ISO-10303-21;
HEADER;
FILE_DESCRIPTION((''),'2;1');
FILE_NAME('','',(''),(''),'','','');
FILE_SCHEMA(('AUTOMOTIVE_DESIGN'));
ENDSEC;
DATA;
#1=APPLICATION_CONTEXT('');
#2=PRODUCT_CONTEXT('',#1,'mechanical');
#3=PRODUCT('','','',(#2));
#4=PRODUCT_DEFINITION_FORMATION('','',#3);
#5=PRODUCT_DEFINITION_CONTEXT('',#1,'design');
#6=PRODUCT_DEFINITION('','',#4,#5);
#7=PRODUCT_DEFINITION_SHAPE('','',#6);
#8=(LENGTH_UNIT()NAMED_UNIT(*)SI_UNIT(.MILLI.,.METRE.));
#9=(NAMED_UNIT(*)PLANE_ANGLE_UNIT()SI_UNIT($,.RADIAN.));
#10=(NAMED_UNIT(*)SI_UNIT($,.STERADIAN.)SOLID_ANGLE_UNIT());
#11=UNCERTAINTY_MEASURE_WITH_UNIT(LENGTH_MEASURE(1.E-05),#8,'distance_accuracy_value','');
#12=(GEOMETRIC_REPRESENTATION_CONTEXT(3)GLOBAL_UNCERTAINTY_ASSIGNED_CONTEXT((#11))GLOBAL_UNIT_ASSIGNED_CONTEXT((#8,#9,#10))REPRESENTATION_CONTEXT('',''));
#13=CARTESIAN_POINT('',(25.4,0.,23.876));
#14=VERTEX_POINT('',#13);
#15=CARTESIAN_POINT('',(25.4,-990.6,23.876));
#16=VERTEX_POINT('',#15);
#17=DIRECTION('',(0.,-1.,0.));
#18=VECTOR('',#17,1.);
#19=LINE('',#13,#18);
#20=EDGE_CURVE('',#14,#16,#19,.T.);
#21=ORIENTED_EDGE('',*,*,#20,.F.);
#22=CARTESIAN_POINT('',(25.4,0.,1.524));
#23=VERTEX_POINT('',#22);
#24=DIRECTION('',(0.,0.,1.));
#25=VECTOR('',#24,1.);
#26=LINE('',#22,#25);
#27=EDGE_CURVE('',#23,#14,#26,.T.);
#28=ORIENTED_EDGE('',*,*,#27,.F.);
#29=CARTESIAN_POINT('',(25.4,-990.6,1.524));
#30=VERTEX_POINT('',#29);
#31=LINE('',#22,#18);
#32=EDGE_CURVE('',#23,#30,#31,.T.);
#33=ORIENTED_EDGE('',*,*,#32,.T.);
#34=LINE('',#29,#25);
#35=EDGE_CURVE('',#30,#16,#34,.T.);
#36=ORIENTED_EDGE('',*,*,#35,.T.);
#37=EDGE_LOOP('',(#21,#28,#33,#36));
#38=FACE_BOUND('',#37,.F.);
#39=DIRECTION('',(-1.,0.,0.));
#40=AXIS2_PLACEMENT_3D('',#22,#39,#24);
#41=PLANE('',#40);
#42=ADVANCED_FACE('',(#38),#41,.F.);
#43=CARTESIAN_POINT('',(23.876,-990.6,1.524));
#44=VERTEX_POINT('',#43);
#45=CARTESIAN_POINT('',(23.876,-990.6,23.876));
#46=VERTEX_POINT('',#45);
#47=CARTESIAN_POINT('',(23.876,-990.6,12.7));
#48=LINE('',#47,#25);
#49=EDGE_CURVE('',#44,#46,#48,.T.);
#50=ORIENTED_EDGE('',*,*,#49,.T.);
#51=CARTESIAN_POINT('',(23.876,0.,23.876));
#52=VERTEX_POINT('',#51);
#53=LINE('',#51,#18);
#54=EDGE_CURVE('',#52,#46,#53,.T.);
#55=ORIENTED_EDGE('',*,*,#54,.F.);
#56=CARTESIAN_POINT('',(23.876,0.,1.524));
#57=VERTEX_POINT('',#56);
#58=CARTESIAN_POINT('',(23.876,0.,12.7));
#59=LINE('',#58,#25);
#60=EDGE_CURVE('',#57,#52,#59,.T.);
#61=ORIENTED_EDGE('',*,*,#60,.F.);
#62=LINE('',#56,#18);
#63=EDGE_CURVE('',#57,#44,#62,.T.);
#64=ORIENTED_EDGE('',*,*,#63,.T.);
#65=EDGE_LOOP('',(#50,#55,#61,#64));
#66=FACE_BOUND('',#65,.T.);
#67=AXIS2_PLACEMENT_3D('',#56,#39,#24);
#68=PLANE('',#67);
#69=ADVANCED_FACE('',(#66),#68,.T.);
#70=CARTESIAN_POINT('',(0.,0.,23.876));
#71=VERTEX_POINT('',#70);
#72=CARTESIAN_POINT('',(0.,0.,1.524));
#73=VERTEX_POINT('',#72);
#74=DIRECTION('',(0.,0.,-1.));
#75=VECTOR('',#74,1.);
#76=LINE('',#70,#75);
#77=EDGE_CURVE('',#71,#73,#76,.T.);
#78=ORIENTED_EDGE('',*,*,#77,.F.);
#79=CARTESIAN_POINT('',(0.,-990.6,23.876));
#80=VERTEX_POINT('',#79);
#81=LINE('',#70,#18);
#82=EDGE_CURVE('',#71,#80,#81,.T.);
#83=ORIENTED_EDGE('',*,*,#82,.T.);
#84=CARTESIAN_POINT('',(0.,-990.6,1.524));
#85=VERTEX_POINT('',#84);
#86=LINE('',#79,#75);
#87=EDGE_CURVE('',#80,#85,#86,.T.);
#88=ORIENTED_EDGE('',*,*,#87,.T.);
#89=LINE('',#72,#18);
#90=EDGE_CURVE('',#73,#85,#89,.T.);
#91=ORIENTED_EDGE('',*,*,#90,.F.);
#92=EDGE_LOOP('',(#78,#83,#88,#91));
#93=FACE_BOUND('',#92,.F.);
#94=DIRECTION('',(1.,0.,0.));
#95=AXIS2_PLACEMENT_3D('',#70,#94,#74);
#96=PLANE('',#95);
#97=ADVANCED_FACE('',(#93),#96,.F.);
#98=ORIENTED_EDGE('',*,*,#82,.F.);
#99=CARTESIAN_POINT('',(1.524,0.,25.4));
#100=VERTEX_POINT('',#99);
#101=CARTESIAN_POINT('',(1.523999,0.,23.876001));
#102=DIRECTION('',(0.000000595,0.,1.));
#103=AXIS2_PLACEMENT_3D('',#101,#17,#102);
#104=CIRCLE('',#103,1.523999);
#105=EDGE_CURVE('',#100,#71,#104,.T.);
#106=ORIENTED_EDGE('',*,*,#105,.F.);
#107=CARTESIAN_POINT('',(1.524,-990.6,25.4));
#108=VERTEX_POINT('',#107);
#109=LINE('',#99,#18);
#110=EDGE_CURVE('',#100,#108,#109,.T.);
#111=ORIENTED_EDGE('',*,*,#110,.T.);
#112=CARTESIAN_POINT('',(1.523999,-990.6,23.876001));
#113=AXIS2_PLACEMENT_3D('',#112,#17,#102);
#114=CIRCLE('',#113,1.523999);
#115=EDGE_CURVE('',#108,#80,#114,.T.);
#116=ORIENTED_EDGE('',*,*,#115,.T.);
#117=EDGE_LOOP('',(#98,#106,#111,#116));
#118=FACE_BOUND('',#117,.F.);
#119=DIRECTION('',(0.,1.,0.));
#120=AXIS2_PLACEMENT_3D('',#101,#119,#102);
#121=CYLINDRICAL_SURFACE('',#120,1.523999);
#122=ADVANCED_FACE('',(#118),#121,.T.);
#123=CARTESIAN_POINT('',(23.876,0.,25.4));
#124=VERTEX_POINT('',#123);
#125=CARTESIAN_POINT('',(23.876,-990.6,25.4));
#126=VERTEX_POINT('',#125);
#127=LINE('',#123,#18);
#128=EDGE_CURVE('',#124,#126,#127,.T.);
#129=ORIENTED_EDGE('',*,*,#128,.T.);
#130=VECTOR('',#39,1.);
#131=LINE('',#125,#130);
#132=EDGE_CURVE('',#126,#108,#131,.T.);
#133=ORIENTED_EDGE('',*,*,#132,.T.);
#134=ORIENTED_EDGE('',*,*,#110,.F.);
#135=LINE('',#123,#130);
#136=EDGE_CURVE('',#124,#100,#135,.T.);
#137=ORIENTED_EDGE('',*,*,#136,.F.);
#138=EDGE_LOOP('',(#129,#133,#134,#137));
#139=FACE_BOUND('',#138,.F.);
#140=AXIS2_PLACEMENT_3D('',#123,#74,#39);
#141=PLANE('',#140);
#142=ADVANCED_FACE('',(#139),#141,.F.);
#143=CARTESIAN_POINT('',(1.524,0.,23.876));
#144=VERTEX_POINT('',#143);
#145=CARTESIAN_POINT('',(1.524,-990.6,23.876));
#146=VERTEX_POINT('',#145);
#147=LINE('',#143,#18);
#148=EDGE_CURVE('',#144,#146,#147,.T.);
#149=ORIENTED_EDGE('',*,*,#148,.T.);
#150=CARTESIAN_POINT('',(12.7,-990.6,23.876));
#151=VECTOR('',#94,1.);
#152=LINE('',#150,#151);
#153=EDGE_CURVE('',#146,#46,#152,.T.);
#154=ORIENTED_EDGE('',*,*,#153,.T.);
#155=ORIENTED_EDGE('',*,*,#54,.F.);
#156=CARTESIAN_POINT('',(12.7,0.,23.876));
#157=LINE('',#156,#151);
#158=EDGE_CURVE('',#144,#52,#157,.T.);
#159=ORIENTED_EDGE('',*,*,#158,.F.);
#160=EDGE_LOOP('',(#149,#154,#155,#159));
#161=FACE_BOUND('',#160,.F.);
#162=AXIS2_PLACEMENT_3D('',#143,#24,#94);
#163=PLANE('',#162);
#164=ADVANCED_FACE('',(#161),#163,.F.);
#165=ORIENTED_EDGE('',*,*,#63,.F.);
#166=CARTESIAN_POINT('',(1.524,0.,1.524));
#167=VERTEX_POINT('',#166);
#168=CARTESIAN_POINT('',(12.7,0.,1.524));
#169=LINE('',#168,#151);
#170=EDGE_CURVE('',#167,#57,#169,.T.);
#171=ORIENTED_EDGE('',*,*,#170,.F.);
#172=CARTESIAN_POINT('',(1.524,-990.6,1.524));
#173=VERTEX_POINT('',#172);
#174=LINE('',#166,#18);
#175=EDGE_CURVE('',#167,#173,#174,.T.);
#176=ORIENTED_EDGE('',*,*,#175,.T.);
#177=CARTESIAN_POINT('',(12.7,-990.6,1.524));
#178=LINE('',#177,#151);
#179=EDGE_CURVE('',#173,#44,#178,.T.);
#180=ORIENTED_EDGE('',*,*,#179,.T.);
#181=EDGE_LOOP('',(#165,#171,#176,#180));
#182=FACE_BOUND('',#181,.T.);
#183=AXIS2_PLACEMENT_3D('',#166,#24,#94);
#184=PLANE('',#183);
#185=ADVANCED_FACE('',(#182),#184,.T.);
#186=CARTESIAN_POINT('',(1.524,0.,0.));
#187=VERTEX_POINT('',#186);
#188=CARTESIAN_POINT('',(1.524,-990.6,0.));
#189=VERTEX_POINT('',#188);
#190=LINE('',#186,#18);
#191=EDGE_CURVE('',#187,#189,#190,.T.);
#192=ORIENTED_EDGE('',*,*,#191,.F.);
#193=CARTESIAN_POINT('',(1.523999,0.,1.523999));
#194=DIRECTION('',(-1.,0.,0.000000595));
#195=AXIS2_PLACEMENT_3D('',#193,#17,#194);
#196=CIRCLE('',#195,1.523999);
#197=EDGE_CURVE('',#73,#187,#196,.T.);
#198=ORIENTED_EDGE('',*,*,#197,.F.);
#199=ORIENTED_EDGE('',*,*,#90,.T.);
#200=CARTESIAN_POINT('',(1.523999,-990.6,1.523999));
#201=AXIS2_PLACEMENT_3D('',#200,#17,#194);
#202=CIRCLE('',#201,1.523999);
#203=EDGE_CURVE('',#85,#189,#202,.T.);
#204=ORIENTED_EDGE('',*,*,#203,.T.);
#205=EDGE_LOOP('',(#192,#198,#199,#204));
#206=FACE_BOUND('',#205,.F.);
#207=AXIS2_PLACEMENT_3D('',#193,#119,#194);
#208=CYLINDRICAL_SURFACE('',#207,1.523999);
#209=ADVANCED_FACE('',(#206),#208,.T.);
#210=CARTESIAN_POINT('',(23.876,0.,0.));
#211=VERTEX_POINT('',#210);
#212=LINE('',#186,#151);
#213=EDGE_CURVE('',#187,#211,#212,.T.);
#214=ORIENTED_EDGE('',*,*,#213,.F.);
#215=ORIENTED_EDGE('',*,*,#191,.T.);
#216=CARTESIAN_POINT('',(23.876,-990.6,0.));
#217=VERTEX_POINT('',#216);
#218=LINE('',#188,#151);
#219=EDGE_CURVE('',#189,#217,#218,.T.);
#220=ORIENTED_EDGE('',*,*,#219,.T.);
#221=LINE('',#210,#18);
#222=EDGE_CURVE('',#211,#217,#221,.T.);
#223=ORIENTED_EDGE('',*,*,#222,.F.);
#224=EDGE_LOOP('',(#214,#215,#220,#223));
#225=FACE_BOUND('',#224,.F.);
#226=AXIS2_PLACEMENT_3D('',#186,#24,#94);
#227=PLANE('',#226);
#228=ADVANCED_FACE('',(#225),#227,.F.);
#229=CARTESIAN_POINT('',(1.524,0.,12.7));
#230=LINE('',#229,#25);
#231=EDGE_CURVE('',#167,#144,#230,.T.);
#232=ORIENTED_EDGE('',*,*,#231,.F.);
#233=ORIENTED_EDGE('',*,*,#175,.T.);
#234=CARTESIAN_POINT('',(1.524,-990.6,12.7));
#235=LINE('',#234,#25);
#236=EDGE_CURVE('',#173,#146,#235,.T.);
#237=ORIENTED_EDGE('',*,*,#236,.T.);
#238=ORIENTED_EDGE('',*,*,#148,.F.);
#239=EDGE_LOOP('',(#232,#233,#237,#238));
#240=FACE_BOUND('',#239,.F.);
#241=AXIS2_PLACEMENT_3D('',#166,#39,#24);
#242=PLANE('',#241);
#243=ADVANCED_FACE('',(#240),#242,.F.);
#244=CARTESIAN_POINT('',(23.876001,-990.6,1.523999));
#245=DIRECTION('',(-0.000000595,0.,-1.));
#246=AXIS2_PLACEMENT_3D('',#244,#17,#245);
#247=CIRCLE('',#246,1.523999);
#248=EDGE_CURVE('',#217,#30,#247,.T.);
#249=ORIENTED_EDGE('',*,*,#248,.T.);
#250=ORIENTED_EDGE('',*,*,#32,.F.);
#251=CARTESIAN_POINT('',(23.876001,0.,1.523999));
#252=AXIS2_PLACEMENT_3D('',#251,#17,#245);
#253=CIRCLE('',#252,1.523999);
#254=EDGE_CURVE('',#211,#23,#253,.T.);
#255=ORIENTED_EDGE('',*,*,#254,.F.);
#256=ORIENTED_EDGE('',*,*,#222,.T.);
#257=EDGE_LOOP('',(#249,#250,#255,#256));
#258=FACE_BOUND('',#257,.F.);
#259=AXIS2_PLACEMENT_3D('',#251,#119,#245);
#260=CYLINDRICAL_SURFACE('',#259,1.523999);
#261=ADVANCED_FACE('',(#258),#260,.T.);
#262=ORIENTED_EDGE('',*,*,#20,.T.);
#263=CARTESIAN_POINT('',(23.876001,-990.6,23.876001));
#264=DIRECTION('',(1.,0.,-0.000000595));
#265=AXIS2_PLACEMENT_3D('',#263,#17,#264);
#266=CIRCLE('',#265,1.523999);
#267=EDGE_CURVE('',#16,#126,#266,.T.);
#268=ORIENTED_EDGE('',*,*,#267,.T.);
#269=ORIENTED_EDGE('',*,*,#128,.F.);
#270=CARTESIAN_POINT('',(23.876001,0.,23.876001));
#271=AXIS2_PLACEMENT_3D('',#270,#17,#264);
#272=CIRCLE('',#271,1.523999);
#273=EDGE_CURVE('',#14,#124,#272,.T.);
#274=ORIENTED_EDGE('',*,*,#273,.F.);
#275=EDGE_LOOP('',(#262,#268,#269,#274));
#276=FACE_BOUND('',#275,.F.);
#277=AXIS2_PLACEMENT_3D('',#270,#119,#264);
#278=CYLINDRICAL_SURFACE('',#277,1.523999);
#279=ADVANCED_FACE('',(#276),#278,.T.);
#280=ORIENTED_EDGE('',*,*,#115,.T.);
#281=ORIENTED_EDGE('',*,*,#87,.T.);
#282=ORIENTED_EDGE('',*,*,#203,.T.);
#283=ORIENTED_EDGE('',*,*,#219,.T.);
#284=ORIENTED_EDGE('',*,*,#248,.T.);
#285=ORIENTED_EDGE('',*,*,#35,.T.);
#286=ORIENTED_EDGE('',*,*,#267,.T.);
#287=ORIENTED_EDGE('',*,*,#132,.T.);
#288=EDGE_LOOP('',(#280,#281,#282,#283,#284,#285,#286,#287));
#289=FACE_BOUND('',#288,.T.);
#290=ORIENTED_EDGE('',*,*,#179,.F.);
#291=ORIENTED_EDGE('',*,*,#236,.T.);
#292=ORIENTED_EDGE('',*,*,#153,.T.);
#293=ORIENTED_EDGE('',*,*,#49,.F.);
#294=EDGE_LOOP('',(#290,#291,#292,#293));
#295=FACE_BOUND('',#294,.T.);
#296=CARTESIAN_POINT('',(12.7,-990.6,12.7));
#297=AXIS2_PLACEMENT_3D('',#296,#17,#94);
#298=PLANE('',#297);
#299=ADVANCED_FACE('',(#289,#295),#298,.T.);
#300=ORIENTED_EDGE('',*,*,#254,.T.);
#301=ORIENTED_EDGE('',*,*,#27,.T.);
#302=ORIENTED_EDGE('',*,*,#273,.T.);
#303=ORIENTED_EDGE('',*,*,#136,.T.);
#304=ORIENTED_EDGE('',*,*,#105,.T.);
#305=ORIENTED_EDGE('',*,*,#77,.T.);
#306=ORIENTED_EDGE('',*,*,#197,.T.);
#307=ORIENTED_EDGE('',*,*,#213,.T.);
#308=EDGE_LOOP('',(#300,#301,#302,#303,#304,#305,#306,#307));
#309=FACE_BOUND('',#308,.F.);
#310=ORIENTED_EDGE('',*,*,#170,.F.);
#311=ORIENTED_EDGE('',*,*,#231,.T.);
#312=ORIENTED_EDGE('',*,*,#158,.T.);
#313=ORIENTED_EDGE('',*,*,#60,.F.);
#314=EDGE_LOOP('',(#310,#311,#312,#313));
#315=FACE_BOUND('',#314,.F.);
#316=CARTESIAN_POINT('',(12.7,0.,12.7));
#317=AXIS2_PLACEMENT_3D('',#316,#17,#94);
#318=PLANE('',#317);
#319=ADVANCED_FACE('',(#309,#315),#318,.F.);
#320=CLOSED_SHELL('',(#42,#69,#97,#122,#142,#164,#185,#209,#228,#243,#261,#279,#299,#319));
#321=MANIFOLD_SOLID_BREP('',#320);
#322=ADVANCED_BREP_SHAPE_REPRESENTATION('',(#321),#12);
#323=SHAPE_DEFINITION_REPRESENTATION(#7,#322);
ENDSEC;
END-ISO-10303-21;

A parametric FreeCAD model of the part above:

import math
import FreeCAD as App
import Part
import Sketcher

V = App.Vector
Q = App.Units.Quantity


def add_polygon(sketch, points):
    """Adds a closed chain of lines whose ends are joined by coincident constraints."""
    first, n = sketch.GeometryCount, len(points)
    for a, b in zip(points, points[1:] + points[:1]):
        sketch.addGeometry(Part.LineSegment(App.Vector(*a, 0), App.Vector(*b, 0)), False)
    for i in range(n):
        sketch.addConstraint(Sketcher.Constraint("Coincident", first + i, 2, first + (i + 1) % n, 1))

doc = App.newDocument("Part")
body = doc.addObject("PartDesign::Body", "Body")

# Sketch on XZ plane
sketch1 = body.newObject("Sketcher::SketchObject", "Sketch")
sketch1.AttachmentSupport = (doc.getObject("XZ_Plane"), [""])
sketch1.MapMode = "FlatFace"
sketch1.addGeometry(Part.ArcOfCircle(Part.Circle(V(1.5, 1.5, 0), V(0, 0, 1), 1.5), math.radians(180), math.radians(270)), False)  # 0
sketch1.addGeometry(Part.LineSegment(V(1.5, 0, 0), V(23.9, 0, 0)), False)  # 1
sketch1.addGeometry(Part.ArcOfCircle(Part.Circle(V(23.9, 1.5, 0), V(0, 0, 1), 1.5), math.radians(-90), math.radians(0)), False)  # 2
sketch1.addGeometry(Part.LineSegment(V(25.4, 1.5, 0), V(25.4, 23.9, 0)), False)  # 3
sketch1.addGeometry(Part.ArcOfCircle(Part.Circle(V(23.9, 23.9, 0), V(0, 0, 1), 1.5), math.radians(0), math.radians(90)), False)  # 4
sketch1.addGeometry(Part.LineSegment(V(23.9, 25.4, 0), V(1.5, 25.4, 0)), False)  # 5
sketch1.addGeometry(Part.ArcOfCircle(Part.Circle(V(1.5, 23.9, 0), V(0, 0, 1), 1.5), math.radians(90), math.radians(180)), False)  # 6
sketch1.addGeometry(Part.LineSegment(V(0, 23.9, 0), V(0, 1.5, 0)), False)  # 7
add_polygon(sketch1, [(23.9, 1.5), (1.5, 1.5), (1.5, 23.9), (23.9, 23.9)])  # lines 8-11
sketch1.addConstraint(Sketcher.Constraint("Tangent", 0, 2, 1, 1))
sketch1.addConstraint(Sketcher.Constraint("Tangent", 1, 2, 2, 1))
sketch1.addConstraint(Sketcher.Constraint("Tangent", 2, 2, 3, 1))
sketch1.addConstraint(Sketcher.Constraint("Tangent", 3, 2, 4, 1))
sketch1.addConstraint(Sketcher.Constraint("Tangent", 4, 2, 5, 1))
sketch1.addConstraint(Sketcher.Constraint("Tangent", 5, 2, 6, 1))
sketch1.addConstraint(Sketcher.Constraint("Tangent", 6, 2, 7, 1))
sketch1.addConstraint(Sketcher.Constraint("Tangent", 7, 2, 0, 1))
sketch1.addConstraint(Sketcher.Constraint("Horizontal", 1))
sketch1.addConstraint(Sketcher.Constraint("Vertical", 3))
sketch1.addConstraint(Sketcher.Constraint("Horizontal", 5))
sketch1.addConstraint(Sketcher.Constraint("Vertical", 7))
sketch1.addConstraint(Sketcher.Constraint("Horizontal", 8))
sketch1.addConstraint(Sketcher.Constraint("Vertical", 9))
sketch1.addConstraint(Sketcher.Constraint("Horizontal", 10))
sketch1.addConstraint(Sketcher.Constraint("Vertical", 11))
sketch1.addConstraint(Sketcher.Constraint("Coincident", 8, 2, 0, 3))
sketch1.addConstraint(Sketcher.Constraint("Coincident", 9, 2, 6, 3))
sketch1.addConstraint(Sketcher.Constraint("Coincident", 10, 2, 4, 3))
sketch1.addConstraint(Sketcher.Constraint("Equal", 0, 2))
sketch1.addConstraint(Sketcher.Constraint("PointOnObject", 0, 2, -1))
sketch1.addConstraint(Sketcher.Constraint("PointOnObject", 6, 2, -2))
sketch1.addConstraint(Sketcher.Constraint("Equal", 10, 3))
sketch1.addConstraint(Sketcher.Constraint("Radius", 0, Q("0.06 in")))
sketch1.addConstraint(Sketcher.Constraint("DistanceX", -1, 1, 2, 2, Q("1 in")))
pad1 = body.newObject("PartDesign::Pad", "Pad")
pad1.Profile = sketch1
pad1.Length = Q("39 in")

doc.recompute()
